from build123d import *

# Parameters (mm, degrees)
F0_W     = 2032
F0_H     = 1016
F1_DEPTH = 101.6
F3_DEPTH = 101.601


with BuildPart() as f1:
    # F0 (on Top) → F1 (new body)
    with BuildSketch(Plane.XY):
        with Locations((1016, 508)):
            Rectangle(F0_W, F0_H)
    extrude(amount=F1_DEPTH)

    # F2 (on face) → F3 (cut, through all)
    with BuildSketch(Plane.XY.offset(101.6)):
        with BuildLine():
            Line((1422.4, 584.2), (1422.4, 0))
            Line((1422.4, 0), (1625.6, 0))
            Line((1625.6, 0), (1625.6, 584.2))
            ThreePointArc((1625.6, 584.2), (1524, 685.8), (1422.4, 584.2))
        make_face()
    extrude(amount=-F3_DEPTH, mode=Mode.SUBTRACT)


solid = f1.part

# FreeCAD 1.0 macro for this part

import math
import FreeCAD as App
import Part
import Sketcher
from FreeCAD import Vector
Q = App.Units.Quantity


def add_polygon(sketch, points):
    """Adds a closed chain of lines whose ends are joined by coincident constraints."""
    first, n = sketch.GeometryCount, len(points)
    for a, b in zip(points, points[1:] + points[:1]):
        sketch.addGeometry(Part.LineSegment(App.Vector(*a, 0), App.Vector(*b, 0)), False)
    for i in range(n):
        sketch.addConstraint(Sketcher.Constraint("Coincident", first + i, 2, first + (i + 1) % n, 1))

doc = App.newDocument("Part")
body = doc.addObject("PartDesign::Body", "Body")

sketch1 = doc.addObject("Sketcher::SketchObject", "Sketch")
body.addObject(sketch1)
sketch1.AttachmentSupport = (doc.XY_Plane, [""])
sketch1.MapMode = "FlatFace"
add_polygon(sketch1, [(0, 1016), (0, 0), (2032, 0), (2032, 1016)])
sketch1.addConstraint([
    Sketcher.Constraint("Vertical", 0),
    Sketcher.Constraint("Horizontal", 1),
    Sketcher.Constraint("Vertical", 2),
    Sketcher.Constraint("Horizontal", 3),
    Sketcher.Constraint("Coincident", 0, 2, -1, 1),
    Sketcher.Constraint("DistanceX", 1, 1, 1, 2, Q("80 in")),
    Sketcher.Constraint("DistanceY", 0, 2, 0, 1, Q("40 in")),
])
pad1 = doc.addObject("PartDesign::Pad", "Pad")
body.addObject(pad1)
pad1.Profile = sketch1
pad1.Length = Q("4 in")

sketch2 = doc.addObject("Sketcher::SketchObject", "Sketch001")
body.addObject(sketch2)
sketch2.AttachmentSupport = (doc.XY_Plane, [""])
sketch2.MapMode = "FlatFace"
sketch2.AttachmentOffset = App.Placement(Vector(0, 0, 4 * 25.4), App.Rotation())
sketch2.addGeometry([
    Part.LineSegment(Vector(1422, 584, 0), Vector(1422, 0, 0)),
    Part.LineSegment(Vector(1422, 0, 0), Vector(1626, 0, 0)),
    Part.LineSegment(Vector(1626, 0, 0), Vector(1626, 584, 0)),
    Part.ArcOfCircle(Part.Circle(Vector(1524, 584, 0), Vector(0, 0, 1), 102), math.radians(0), math.radians(180)),
], False)
sketch2.addConstraint([
    Sketcher.Constraint("Coincident", 0, 2, 1, 1),
    Sketcher.Constraint("Coincident", 1, 2, 2, 1),
    Sketcher.Constraint("Tangent", 2, 2, 3, 1),
    Sketcher.Constraint("Tangent", 3, 2, 0, 1),
    Sketcher.Constraint("Vertical", 0),
    Sketcher.Constraint("Horizontal", 1),
    Sketcher.Constraint("Vertical", 2),
    Sketcher.Constraint("PointOnObject", 0, 2, -1),
    Sketcher.Constraint("Radius", 3, Q("4 in")),
    Sketcher.Constraint("DistanceY", 0, 2, 0, 1, Q("23 in")),
    Sketcher.Constraint("DistanceX", -1, 1, 3, 3, Q("60 in")),
])
pocket1 = doc.addObject("PartDesign::Pocket", "Pocket")
body.addObject(pocket1)
pocket1.Profile = sketch2
pocket1.Type = "ThroughAll"

doc.recompute()
